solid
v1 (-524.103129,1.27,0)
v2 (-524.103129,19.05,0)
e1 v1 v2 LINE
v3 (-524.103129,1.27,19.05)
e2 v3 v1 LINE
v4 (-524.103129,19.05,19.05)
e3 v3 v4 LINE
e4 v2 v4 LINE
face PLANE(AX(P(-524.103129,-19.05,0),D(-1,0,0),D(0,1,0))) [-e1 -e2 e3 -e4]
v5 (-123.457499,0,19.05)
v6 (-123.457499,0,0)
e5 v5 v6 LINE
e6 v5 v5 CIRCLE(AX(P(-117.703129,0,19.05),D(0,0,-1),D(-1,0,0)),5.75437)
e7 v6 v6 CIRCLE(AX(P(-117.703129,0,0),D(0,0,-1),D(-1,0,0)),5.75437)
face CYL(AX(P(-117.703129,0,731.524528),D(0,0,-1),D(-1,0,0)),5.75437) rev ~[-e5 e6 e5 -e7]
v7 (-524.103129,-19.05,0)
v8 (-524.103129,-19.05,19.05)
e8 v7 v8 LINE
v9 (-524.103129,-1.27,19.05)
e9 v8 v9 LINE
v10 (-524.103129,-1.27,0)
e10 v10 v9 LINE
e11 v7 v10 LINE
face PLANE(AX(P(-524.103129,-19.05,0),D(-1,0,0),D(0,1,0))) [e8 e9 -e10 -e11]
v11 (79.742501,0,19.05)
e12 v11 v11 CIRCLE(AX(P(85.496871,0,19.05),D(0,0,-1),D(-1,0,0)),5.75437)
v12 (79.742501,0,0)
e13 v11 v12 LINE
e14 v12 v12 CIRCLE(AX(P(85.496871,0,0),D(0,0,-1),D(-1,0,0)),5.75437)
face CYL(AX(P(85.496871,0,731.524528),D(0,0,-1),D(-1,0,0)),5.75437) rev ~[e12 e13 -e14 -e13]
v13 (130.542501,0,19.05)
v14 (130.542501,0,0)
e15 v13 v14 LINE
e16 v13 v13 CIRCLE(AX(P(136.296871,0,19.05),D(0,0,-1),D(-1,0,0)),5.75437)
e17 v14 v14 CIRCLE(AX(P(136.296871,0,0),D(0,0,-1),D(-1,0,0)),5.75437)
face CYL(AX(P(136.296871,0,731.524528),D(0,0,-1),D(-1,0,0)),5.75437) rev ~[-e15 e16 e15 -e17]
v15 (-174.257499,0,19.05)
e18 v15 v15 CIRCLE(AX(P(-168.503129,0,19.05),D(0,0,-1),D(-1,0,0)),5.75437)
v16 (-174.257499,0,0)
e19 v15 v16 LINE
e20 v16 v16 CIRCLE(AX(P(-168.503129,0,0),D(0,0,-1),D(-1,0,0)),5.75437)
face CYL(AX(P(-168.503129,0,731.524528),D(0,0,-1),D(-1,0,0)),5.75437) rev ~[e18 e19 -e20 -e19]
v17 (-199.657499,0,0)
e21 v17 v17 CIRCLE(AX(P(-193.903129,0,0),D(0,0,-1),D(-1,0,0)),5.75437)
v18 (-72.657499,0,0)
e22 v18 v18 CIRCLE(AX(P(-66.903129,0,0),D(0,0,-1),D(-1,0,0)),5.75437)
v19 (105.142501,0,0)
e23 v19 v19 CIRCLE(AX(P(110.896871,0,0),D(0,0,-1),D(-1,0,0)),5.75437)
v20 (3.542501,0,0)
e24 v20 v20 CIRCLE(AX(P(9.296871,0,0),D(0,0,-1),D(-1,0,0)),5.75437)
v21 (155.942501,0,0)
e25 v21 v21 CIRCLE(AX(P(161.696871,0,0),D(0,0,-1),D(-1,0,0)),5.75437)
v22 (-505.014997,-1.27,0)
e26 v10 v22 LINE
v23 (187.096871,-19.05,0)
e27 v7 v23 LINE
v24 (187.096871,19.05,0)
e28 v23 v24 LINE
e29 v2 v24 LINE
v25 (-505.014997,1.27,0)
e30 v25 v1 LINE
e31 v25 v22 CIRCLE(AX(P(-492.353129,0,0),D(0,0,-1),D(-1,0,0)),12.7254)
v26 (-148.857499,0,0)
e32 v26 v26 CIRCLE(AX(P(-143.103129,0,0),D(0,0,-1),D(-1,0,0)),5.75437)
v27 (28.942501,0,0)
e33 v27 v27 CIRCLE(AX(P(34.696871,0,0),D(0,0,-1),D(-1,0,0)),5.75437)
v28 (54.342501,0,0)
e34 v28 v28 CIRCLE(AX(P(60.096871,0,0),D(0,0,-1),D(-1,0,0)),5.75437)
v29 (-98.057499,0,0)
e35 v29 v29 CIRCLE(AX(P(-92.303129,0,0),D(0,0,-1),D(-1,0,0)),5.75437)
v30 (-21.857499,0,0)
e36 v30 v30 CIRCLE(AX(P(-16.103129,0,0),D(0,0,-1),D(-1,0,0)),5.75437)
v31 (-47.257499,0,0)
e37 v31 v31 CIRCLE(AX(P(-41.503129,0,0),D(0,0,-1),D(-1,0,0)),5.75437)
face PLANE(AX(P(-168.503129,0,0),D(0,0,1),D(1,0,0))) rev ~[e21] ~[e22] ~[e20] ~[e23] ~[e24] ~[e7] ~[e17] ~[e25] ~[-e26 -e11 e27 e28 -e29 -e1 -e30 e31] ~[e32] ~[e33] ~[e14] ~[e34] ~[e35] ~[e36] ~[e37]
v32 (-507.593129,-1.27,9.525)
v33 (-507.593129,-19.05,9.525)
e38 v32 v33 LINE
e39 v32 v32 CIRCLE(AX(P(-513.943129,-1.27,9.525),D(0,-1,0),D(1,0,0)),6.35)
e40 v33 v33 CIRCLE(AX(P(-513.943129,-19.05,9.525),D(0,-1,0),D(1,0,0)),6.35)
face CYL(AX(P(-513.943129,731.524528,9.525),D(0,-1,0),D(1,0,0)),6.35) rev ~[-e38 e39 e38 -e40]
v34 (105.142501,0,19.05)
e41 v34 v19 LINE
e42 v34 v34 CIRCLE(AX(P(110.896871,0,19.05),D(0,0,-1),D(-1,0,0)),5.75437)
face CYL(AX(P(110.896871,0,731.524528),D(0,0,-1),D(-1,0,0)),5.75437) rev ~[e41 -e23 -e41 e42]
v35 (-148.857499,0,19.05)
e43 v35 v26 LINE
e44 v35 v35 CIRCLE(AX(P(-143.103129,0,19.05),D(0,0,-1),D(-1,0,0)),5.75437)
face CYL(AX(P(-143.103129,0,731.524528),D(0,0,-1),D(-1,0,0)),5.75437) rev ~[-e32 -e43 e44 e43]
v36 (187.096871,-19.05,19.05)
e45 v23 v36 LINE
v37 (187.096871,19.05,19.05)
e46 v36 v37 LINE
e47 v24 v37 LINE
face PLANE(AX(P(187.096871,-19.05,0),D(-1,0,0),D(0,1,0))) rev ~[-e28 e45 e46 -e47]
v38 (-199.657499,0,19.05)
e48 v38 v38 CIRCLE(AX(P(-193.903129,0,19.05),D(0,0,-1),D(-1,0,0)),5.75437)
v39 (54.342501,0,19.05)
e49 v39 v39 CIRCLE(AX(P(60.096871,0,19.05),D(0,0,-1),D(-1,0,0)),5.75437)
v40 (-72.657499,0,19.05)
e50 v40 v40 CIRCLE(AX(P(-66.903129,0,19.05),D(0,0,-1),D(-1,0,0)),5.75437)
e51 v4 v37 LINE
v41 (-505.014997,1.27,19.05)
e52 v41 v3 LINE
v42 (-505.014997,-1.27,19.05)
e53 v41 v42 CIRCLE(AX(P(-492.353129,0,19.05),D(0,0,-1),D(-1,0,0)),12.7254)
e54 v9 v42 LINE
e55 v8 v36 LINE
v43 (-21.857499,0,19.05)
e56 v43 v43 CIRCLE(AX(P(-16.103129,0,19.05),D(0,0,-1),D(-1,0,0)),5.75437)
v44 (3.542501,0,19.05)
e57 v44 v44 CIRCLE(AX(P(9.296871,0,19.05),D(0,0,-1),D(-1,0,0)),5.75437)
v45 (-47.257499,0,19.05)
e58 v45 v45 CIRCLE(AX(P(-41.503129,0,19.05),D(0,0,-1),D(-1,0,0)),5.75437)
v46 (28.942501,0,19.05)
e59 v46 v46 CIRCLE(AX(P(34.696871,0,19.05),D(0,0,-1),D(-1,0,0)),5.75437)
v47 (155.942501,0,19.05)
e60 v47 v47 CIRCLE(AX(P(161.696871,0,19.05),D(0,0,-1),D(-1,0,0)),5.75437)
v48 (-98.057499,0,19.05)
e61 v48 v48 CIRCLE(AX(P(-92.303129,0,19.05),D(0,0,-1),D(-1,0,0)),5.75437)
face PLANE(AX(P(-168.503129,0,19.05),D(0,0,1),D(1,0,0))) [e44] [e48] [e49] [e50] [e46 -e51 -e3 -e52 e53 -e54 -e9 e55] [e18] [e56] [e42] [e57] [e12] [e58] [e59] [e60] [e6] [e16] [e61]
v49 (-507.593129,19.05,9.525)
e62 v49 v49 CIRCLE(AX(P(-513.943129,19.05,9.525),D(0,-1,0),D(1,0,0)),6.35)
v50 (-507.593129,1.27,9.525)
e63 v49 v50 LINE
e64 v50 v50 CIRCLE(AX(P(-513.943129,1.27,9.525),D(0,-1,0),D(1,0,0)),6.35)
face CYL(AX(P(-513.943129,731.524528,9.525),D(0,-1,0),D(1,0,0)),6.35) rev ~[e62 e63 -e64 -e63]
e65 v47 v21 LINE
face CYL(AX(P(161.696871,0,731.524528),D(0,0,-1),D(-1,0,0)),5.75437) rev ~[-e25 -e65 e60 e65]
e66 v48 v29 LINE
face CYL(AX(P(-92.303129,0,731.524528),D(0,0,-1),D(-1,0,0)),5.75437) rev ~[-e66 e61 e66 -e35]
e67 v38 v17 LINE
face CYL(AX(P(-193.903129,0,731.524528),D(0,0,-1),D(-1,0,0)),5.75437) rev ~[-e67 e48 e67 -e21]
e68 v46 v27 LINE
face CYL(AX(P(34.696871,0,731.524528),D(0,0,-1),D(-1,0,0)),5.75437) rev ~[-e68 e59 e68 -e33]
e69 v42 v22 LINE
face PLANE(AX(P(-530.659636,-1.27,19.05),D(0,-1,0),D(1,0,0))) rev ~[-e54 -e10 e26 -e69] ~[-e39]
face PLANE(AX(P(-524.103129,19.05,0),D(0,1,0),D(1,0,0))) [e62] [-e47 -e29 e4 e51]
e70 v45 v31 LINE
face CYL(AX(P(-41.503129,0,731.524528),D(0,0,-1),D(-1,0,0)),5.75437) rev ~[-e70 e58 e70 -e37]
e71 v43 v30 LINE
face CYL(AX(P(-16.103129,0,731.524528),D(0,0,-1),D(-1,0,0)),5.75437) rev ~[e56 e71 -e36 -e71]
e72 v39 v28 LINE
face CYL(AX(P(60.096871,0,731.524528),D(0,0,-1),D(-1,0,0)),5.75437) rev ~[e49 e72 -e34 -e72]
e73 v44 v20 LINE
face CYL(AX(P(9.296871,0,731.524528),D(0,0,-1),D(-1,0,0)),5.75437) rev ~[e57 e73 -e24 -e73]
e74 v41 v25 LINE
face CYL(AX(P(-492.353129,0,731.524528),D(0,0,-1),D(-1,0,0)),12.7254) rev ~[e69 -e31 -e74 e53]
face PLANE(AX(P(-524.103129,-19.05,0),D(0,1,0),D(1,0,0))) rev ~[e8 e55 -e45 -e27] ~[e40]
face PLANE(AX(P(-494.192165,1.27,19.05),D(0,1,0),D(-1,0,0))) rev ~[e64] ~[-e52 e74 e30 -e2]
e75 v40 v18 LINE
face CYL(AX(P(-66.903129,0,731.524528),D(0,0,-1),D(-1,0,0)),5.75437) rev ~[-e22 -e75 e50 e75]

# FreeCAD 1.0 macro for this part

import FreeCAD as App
import Part
import Sketcher

V = App.Vector
Q = App.Units.Quantity

doc = App.newDocument("Part")
body = doc.addObject("PartDesign::Body", "Body")

sketch1 = body.newObject("Sketcher::SketchObject", "Sketch")
sketch1.AttachmentSupport = (doc.getObject("XY_Plane"), [""])
sketch1.MapMode = "FlatFace"
sketch1.addGeometry([
    Part.LineSegment(V(-524.103129, 19.05, 0), V(-524.103129, -19.05, 0)),
    Part.LineSegment(V(-524.103129, -19.05, 0), V(187.096871, -19.05, 0)),
    Part.LineSegment(V(187.096871, -19.05, 0), V(187.096871, 19.05, 0)),
    Part.LineSegment(V(187.096871, 19.05, 0), V(-524.103129, 19.05, 0)),
], False)
sketch1.addConstraint([
    Sketcher.Constraint("Coincident", 0, 2, 1, 1),
    Sketcher.Constraint("Coincident", 1, 2, 2, 1),
    Sketcher.Constraint("Coincident", 2, 2, 3, 1),
    Sketcher.Constraint("Coincident", 3, 2, 0, 1),
    Sketcher.Constraint("Vertical", 0),
    Sketcher.Constraint("Horizontal", 1),
    Sketcher.Constraint("Vertical", 2),
    Sketcher.Constraint("Horizontal", 3),
    Sketcher.Constraint("DistanceX", 1, 1, 1, 2, Q("28 in")),
    Sketcher.Constraint("DistanceY", 0, 2, 0, 1, Q("1.5 in")),
    Sketcher.Constraint("DistanceY", 0, 2, -1, 1, Q("0.75 in")),
    Sketcher.Constraint("DistanceX", 0, 2, -1, 1, Q("524.103129 mm")),
])
pad1 = body.newObject("PartDesign::Pad", "Pad")
pad1.Profile = sketch1
pad1.Length = Q("0.75 in")

sketch2 = body.newObject("Sketcher::SketchObject", "Sketch001")
sketch2.AttachmentSupport = (doc.getObject("XY_Plane"), [""])
sketch2.MapMode = "FlatFace"
sketch2.AttachmentOffset = App.Placement(V(0, 0, 0.75 * 25.4), App.Rotation())
sketch2.addGeometry([
    Part.Circle(V(-143.103129, 0, 0), V(0, 0, 1), 5.75437),
    Part.Circle(V(-117.703129, 0, 0), V(0, 0, 1), 5.75437),
    Part.Circle(V(-92.303129, 0, 0), V(0, 0, 1), 5.75437),
    Part.Circle(V(-66.903129, 0, 0), V(0, 0, 1), 5.75437),
    Part.Circle(V(-16.103129, 0, 0), V(0, 0, 1), 5.75437),
    Part.Circle(V(-41.503129, 0, 0), V(0, 0, 1), 5.75437),
    Part.Circle(V(9.296871, 0, 0), V(0, 0, 1), 5.75437),
    Part.Circle(V(34.696871, 0, 0), V(0, 0, 1), 5.75437),
    Part.Circle(V(60.096871, 0, 0), V(0, 0, 1), 5.75437),
    Part.Circle(V(85.496871, 0, 0), V(0, 0, 1), 5.75437),
    Part.Circle(V(-168.503129, 0, 0), V(0, 0, 1), 5.75437),
    Part.Circle(V(-193.903129, 0, 0), V(0, 0, 1), 5.75437),
    Part.Circle(V(110.896871, 0, 0), V(0, 0, 1), 5.75437),
    Part.Circle(V(136.296871, 0, 0), V(0, 0, 1), 5.75437),
    Part.Circle(V(161.696871, 0, 0), V(0, 0, 1), 5.75437),
], False)
sketch2.addConstraint([
    Sketcher.Constraint("Equal", 0, 1),
    Sketcher.Constraint("Equal", 1, 2),
    Sketcher.Constraint("Equal", 2, 3),
    Sketcher.Constraint("Equal", 3, 4),
    Sketcher.Constraint("Equal", 4, 5),
    Sketcher.Constraint("Equal", 5, 6),
    Sketcher.Constraint("Equal", 6, 7),
    Sketcher.Constraint("Equal", 7, 8),
    Sketcher.Constraint("Equal", 8, 9),
    Sketcher.Constraint("Equal", 9, 10),
    Sketcher.Constraint("Equal", 10, 11),
    Sketcher.Constraint("Equal", 11, 12),
    Sketcher.Constraint("Equal", 12, 13),
    Sketcher.Constraint("Equal", 13, 14),
    Sketcher.Constraint("PointOnObject", 0, 3, -1),
    Sketcher.Constraint("PointOnObject", 1, 3, -1),
    Sketcher.Constraint("PointOnObject", 2, 3, -1),
    Sketcher.Constraint("PointOnObject", 3, 3, -1),
    Sketcher.Constraint("PointOnObject", 4, 3, -1),
    Sketcher.Constraint("PointOnObject", 5, 3, -1),
    Sketcher.Constraint("PointOnObject", 6, 3, -1),
    Sketcher.Constraint("PointOnObject", 7, 3, -1),
    Sketcher.Constraint("PointOnObject", 8, 3, -1),
    Sketcher.Constraint("PointOnObject", 9, 3, -1),
    Sketcher.Constraint("PointOnObject", 10, 3, -1),
    Sketcher.Constraint("PointOnObject", 11, 3, -1),
    Sketcher.Constraint("PointOnObject", 12, 3, -1),
    Sketcher.Constraint("PointOnObject", 13, 3, -1),
    Sketcher.Constraint("PointOnObject", 14, 3, -1),
    Sketcher.Constraint("DistanceX", 0, 3, 1, 3, Q("1 in")),
    Sketcher.Constraint("DistanceX", 1, 3, 2, 3, Q("1 in")),
    Sketcher.Constraint("DistanceX", 2, 3, 3, 3, Q("1 in")),
    Sketcher.Constraint("DistanceX", 3, 3, 4, 3, Q("2 in")),
    Sketcher.Constraint("DistanceX", 5, 3, 4, 3, Q("1 in")),
    Sketcher.Constraint("DistanceX", 4, 3, 6, 3, Q("1 in")),
    Sketcher.Constraint("DistanceX", 6, 3, 7, 3, Q("1 in")),
    Sketcher.Constraint("DistanceX", 7, 3, 8, 3, Q("1 in")),
    Sketcher.Constraint("DistanceX", 8, 3, 9, 3, Q("1 in")),
    Sketcher.Constraint("DistanceX", 10, 3, 0, 3, Q("1 in")),
    Sketcher.Constraint("DistanceX", 11, 3, 10, 3, Q("1 in")),
    Sketcher.Constraint("DistanceX", 9, 3, 12, 3, Q("1 in")),
    Sketcher.Constraint("DistanceX", 12, 3, 13, 3, Q("1 in")),
    Sketcher.Constraint("DistanceX", 13, 3, 14, 3, Q("1 in")),
    Sketcher.Constraint("Diameter", 0, Q("0.4531 in")),
    Sketcher.Constraint("DistanceX", 0, 3, -1, 1, Q("143.103129 mm")),
])
doc.recompute()
hole = body.newObject("PartDesign::Hole", "Hole")
hole.Profile = sketch2
hole.ThreadType = "None"
hole.Diameter = Q("0.4531 in")
hole.DepthType = "ThroughAll"

sketch3 = body.newObject("Sketcher::SketchObject", "Sketch002")
sketch3.AttachmentSupport = (doc.getObject("XY_Plane"), [""])
sketch3.MapMode = "FlatFace"
sketch3.AttachmentOffset = App.Placement(V(0, 0, 0.75 * 25.4), App.Rotation())
sketch3.addGeometry(Part.Circle(V(-492.353129, 0, 0), V(0, 0, 1), 12.7254), False)
sketch3.addConstraint([
    Sketcher.Constraint("PointOnObject", 0, 3, -1),
    Sketcher.Constraint("Diameter", 0, Q("1.002 in")),
    Sketcher.Constraint("DistanceX", 0, 3, -1, 1, Q("492.353129 mm")),
])
doc.recompute()
hole2 = body.newObject("PartDesign::Hole", "Hole001")
hole2.Profile = sketch3
hole2.ThreadType = "None"
hole2.Diameter = Q("1.002 in")
hole2.DepthType = "ThroughAll"

sketch4 = body.newObject("Sketcher::SketchObject", "Sketch003")
sketch4.AttachmentSupport = (doc.getObject("XY_Plane"), [""])
sketch4.MapMode = "FlatFace"
sketch4.AttachmentOffset = App.Placement(V(0, 0, 0.75 * 25.4), App.Rotation())
sketch4.addGeometry([
    Part.LineSegment(V(-530.659636, 1.27, 0), V(-530.659636, -1.27, 0)),
    Part.LineSegment(V(-530.659636, -1.27, 0), V(-494.192165, -1.27, 0)),
    Part.LineSegment(V(-494.192165, -1.27, 0), V(-494.192165, 1.27, 0)),
    Part.LineSegment(V(-494.192165, 1.27, 0), V(-530.659636, 1.27, 0)),
], False)
sketch4.addConstraint([
    Sketcher.Constraint("Coincident", 0, 2, 1, 1),
    Sketcher.Constraint("Coincident", 1, 2, 2, 1),
    Sketcher.Constraint("Coincident", 2, 2, 3, 1),
    Sketcher.Constraint("Coincident", 3, 2, 0, 1),
    Sketcher.Constraint("Vertical", 0),
    Sketcher.Constraint("Horizontal", 1),
    Sketcher.Constraint("Vertical", 2),
    Sketcher.Constraint("Horizontal", 3),
    Sketcher.Constraint("DistanceY", 0, 2, 0, 1, Q("0.1 in")),
    Sketcher.Constraint("DistanceY", 0, 2, -1, 1, Q("0.05 in")),
    Sketcher.Constraint("DistanceX", 1, 1, 1, 2, Q("36.467471 mm")),
    Sketcher.Constraint("DistanceX", 0, 2, -1, 1, Q("530.659636 mm")),
])
pocket1 = body.newObject("PartDesign::Pocket", "Pocket")
pocket1.Profile = sketch4
pocket1.Type = "ThroughAll"

sketch5 = body.newObject("Sketcher::SketchObject", "Sketch004")
sketch5.AttachmentSupport = (doc.getObject("XZ_Plane"), [""])
sketch5.MapMode = "FlatFace"
sketch5.AttachmentOffset = App.Placement(V(0, 0, -0.75 * 25.4), App.Rotation())
sketch5.addGeometry(Part.Circle(V(-513.943129, 9.525, 0), V(0, 0, 1), 6.35), False)
sketch5.addConstraint([
    Sketcher.Constraint("Diameter", 0, Q("0.5 in")),
    Sketcher.Constraint("DistanceY", -1, 1, 0, 3, Q("0.375 in")),
    Sketcher.Constraint("DistanceX", 0, 3, -1, 1, Q("513.943129 mm")),
])
doc.recompute()
hole3 = body.newObject("PartDesign::Hole", "Hole002")
hole3.Profile = sketch5
hole3.ThreadType = "None"
hole3.Diameter = Q("0.5 in")
hole3.DepthType = "ThroughAll"
hole3.Reversed = True

doc.recompute()
